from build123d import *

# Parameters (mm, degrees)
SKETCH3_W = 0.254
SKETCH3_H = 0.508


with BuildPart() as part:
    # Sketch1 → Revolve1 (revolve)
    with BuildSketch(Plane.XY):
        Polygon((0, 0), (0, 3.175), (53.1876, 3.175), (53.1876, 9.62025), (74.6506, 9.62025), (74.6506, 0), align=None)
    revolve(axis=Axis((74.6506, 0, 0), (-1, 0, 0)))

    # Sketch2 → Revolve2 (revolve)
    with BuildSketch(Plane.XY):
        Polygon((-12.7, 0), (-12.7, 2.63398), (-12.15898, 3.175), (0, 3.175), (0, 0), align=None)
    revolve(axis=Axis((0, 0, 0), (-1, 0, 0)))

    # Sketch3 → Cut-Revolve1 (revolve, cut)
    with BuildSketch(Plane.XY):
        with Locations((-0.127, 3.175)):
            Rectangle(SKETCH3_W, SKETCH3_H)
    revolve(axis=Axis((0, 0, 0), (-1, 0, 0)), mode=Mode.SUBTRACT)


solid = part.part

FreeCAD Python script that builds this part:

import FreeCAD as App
import Part
import Sketcher

V = App.Vector
Q = App.Units.Quantity


def add_polygon(sketch, points):
    """Adds a closed chain of lines whose ends are joined by coincident constraints."""
    first, n = sketch.GeometryCount, len(points)
    for a, b in zip(points, points[1:] + points[:1]):
        sketch.addGeometry(Part.LineSegment(App.Vector(*a, 0), App.Vector(*b, 0)), False)
    for i in range(n):
        sketch.addConstraint(Sketcher.Constraint("Coincident", first + i, 2, first + (i + 1) % n, 1))

doc = App.newDocument("Part")
body = doc.addObject("PartDesign::Body", "Body")

sketch1 = body.newObject("Sketcher::SketchObject", "Sketch")
sketch1.AttachmentSupport = (doc.getObject("XY_Plane"), [""])
sketch1.MapMode = "FlatFace"
add_polygon(sketch1, [(0, 3.2), (0, 0), (74.7, 0), (74.7, 9.6), (53.2, 9.6), (53.2, 3.2)])
sketch1.addConstraint([
    Sketcher.Constraint("Vertical", 0),
    Sketcher.Constraint("Horizontal", 1),
    Sketcher.Constraint("Vertical", 2),
    Sketcher.Constraint("Horizontal", 3),
    Sketcher.Constraint("Vertical", 4),
    Sketcher.Constraint("Horizontal", 5),
    Sketcher.Constraint("Coincident", 0, 2, -1, 1),
    Sketcher.Constraint("DistanceX", 1, 1, 1, 2, Q("2.939 in")),
    Sketcher.Constraint("DistanceX", 3, 2, 3, 1, Q("0.845 in")),
    Sketcher.Constraint("DistanceY", 0, 2, 0, 1, Q("0.125 in")),
    Sketcher.Constraint("DistanceY", 2, 1, 2, 2, Q("9.62025 mm")),
])
revolution = body.newObject("PartDesign::Revolution", "Revolution")
revolution.Profile = sketch1
revolution.ReferenceAxis = (sketch1, ["H_Axis"])
revolution.Angle = 360

sketch2 = body.newObject("Sketcher::SketchObject", "Sketch001")
sketch2.AttachmentSupport = (doc.getObject("XY_Plane"), [""])
sketch2.MapMode = "FlatFace"
add_polygon(sketch2, [(-12.7, 2.6), (-12.7, 0), (0, 0), (0, 3.2), (-12.2, 3.2)])
sketch2.addConstraint([
    Sketcher.Constraint("Vertical", 0),
    Sketcher.Constraint("Horizontal", 1),
    Sketcher.Constraint("Vertical", 2),
    Sketcher.Constraint("Horizontal", 3),
    Sketcher.Constraint("Coincident", 1, 2, -1, 1),
    Sketcher.Constraint("DistanceX", 1, 1, 1, 2, Q("0.5 in")),
    Sketcher.Constraint("Angle", 4, Q("-135 deg")),
    Sketcher.Constraint("DistanceY", 2, 1, 2, 2, Q("0.125 in")),
    Sketcher.Constraint("DistanceX", 3, 2, 3, 1, Q("0.4787 in")),
])
revolution2 = body.newObject("PartDesign::Revolution", "Revolution001")
revolution2.Profile = sketch2
revolution2.ReferenceAxis = (sketch2, ["H_Axis"])
revolution2.Angle = 360

sketch3 = body.newObject("Sketcher::SketchObject", "Sketch002")
sketch3.AttachmentSupport = (doc.getObject("XY_Plane"), [""])
sketch3.MapMode = "FlatFace"
add_polygon(sketch3, [(-0.25, 3.43), (-0.25, 2.92), (0, 2.92), (0, 3.43)])
sketch3.addConstraint([
    Sketcher.Constraint("Vertical", 0),
    Sketcher.Constraint("Horizontal", 1),
    Sketcher.Constraint("Vertical", 2),
    Sketcher.Constraint("Horizontal", 3),
    Sketcher.Constraint("PointOnObject", 1, 2, -2),
    Sketcher.Constraint("DistanceX", 1, 1, 1, 2, Q("0.01 in")),
    Sketcher.Constraint("DistanceY", 0, 2, 0, 1, Q("0.02 in")),
    Sketcher.Constraint("DistanceY", -1, 1, 0, 2, Q("0.115 in")),
])
groove = body.newObject("PartDesign::Groove", "Groove")
groove.Profile = sketch3
groove.ReferenceAxis = (sketch3, ["H_Axis"])
groove.Angle = 360

doc.recompute()
